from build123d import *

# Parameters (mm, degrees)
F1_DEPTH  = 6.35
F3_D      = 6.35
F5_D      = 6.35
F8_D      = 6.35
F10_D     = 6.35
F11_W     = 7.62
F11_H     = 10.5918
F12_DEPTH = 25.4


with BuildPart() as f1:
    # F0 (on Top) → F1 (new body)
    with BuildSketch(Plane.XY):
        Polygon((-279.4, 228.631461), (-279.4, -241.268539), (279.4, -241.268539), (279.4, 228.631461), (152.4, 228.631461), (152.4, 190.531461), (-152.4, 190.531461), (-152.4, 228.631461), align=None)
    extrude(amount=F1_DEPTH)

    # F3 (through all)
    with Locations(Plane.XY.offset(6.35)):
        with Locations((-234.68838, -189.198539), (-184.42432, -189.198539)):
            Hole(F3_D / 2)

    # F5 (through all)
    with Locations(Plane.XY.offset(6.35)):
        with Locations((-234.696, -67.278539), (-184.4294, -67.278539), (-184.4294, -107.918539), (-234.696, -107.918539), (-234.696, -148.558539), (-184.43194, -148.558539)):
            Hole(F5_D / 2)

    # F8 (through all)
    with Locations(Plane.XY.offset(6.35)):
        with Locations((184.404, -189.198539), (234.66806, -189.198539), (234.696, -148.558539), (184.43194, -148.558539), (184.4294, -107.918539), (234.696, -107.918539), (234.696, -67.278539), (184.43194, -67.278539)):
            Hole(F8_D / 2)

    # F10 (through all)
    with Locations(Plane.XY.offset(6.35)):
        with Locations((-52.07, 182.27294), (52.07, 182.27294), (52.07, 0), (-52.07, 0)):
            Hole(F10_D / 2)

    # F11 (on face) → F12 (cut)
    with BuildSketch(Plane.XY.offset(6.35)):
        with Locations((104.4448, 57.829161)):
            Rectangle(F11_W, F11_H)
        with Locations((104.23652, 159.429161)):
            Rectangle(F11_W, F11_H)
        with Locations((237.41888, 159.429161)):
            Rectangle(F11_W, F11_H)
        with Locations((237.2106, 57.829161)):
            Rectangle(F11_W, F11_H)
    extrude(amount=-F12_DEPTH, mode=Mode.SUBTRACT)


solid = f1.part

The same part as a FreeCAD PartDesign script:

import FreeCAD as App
import Part
import Sketcher
Q = App.Units.Quantity

doc = App.newDocument("Part")
params = doc.addObject("Spreadsheet::Sheet", "Params")
for row, (alias, value) in enumerate([
    ("sketch1_width", "22 in"),
    ("sketch1_width2", "5 in"),
    ("sketch1_height", "18.5 in"),
    ("sketch1_height2", "1.5 in"),
    ("pad1_length", "0.25 in"),
    ("sketch2_diameter", "0.25 in"),
    ("hole_diameter", "0.25 in"),
    ("sketch3_diameter", "0.25 in"),
    ("hole2_diameter", "0.25 in"),
    ("sketch4_diameter", "0.25 in"),
    ("hole3_diameter", "0.25 in"),
    ("sketch5_diameter", "0.25 in"),
    ("hole4_diameter", "0.25 in"),
    ("sketch6_width", "0.3 in"),
    ("sketch6_height", "0.417 in"),
    ("pocket1_length", "1 in"),
], start=1):
    params.set(f"A{row}", alias)
    params.set(f"B{row}", "=" + value)
    params.setAlias(f"B{row}", alias)

body = doc.addObject("PartDesign::Body", "Body")

sketch1 = doc.addObject("Sketcher::SketchObject", "Sketch")
body.addObject(sketch1)
sketch1.AttachmentSupport = (doc.XY_Plane, [""])
sketch1.MapMode = "FlatFace"
sketch1.addGeometry([
    Part.LineSegment(App.Vector(-279, 229, 0), App.Vector(-279, -241, 0)),
    Part.LineSegment(App.Vector(-279, -241, 0), App.Vector(279, -241, 0)),
    Part.LineSegment(App.Vector(279, -241, 0), App.Vector(279, 229, 0)),
    Part.LineSegment(App.Vector(279, 229, 0), App.Vector(152, 229, 0)),
    Part.LineSegment(App.Vector(152, 229, 0), App.Vector(152, 191, 0)),
    Part.LineSegment(App.Vector(152, 191, 0), App.Vector(-152, 191, 0)),
    Part.LineSegment(App.Vector(-152, 191, 0), App.Vector(-152, 229, 0)),
    Part.LineSegment(App.Vector(-152, 229, 0), App.Vector(-279, 229, 0)),
], False)
sketch1.addConstraint([
    Sketcher.Constraint("Coincident", 0, 2, 1, 1),
    Sketcher.Constraint("Coincident", 1, 2, 2, 1),
    Sketcher.Constraint("Coincident", 2, 2, 3, 1),
    Sketcher.Constraint("Coincident", 3, 2, 4, 1),
    Sketcher.Constraint("Coincident", 4, 2, 5, 1),
    Sketcher.Constraint("Coincident", 5, 2, 6, 1),
    Sketcher.Constraint("Coincident", 6, 2, 7, 1),
    Sketcher.Constraint("Coincident", 7, 2, 0, 1),
    Sketcher.Constraint("Vertical", 0),
    Sketcher.Constraint("Horizontal", 1),
    Sketcher.Constraint("Vertical", 2),
    Sketcher.Constraint("Horizontal", 3),
    Sketcher.Constraint("Vertical", 4),
    Sketcher.Constraint("Horizontal", 5),
    Sketcher.Constraint("Vertical", 6),
    Sketcher.Constraint("Horizontal", 7),
    Sketcher.Constraint("Symmetric", 3, 2, 6, 2, -2),
    Sketcher.Constraint("Equal", 3, 7),
    Sketcher.Constraint("DistanceX", 1, 1, 1, 2, Q("22 in")),
    Sketcher.Constraint("DistanceX", 3, 2, 3, 1, Q("5 in")),
    Sketcher.Constraint("DistanceY", 0, 2, 0, 1, Q("18.5 in")),
    Sketcher.Constraint("DistanceY", 4, 2, 4, 1, Q("1.5 in")),
    Sketcher.Constraint("DistanceY", 0, 2, -1, 1, Q("241.268539 mm")),
])
sketch1.setExpression("Constraints[18]", "Params.sketch1_width")
sketch1.setExpression("Constraints[19]", "Params.sketch1_width2")
sketch1.setExpression("Constraints[20]", "Params.sketch1_height")
sketch1.setExpression("Constraints[21]", "Params.sketch1_height2")
pad1 = doc.addObject("PartDesign::Pad", "Pad")
body.addObject(pad1)
pad1.Profile = sketch1
pad1.setExpression("Length", "Params.pad1_length")

sketch2 = doc.addObject("Sketcher::SketchObject", "Sketch001")
body.addObject(sketch2)
sketch2.AttachmentSupport = (doc.XY_Plane, [""])
sketch2.MapMode = "FlatFace"
sketch2.AttachmentOffset = App.Placement(App.Vector(0, 0, 0.25 * 25.4), App.Rotation())
sketch2.addGeometry([
    Part.Circle(App.Vector(-234.7, -189.2, 0), App.Vector(0, 0, 1), 3.2),
    Part.Circle(App.Vector(-184.4, -189.2, 0), App.Vector(0, 0, 1), 3.2),
], False)
sketch2.addConstraint([
    Sketcher.Constraint("Equal", 0, 1),
    Sketcher.Constraint("Horizontal", 0, 3, 1, 3),
    Sketcher.Constraint("Diameter", 0, Q("0.25 in")),
    Sketcher.Constraint("DistanceX", 0, 3, -1, 1, Q("9.2397 in")),
    Sketcher.Constraint("DistanceX", 1, 3, -1, 1, Q("7.2608 in")),
    Sketcher.Constraint("DistanceY", 0, 3, -1, 1, Q("189.198539 mm")),
])
sketch2.setExpression("Constraints[2]", "Params.sketch2_diameter")
doc.recompute()
hole = doc.addObject("PartDesign::Hole", "Hole")
body.addObject(hole)
hole.Profile = sketch2
hole.ThreadType = "None"
hole.setExpression("Diameter", "Params.hole_diameter")
hole.DepthType = "ThroughAll"

sketch3 = doc.addObject("Sketcher::SketchObject", "Sketch002")
body.addObject(sketch3)
sketch3.AttachmentSupport = (doc.XY_Plane, [""])
sketch3.MapMode = "FlatFace"
sketch3.AttachmentOffset = App.Placement(App.Vector(0, 0, 0.25 * 25.4), App.Rotation())
sketch3.addGeometry([
    Part.Circle(App.Vector(-234.7, -67.3, 0), App.Vector(0, 0, 1), 3.2),
    Part.Circle(App.Vector(-184.4, -67.3, 0), App.Vector(0, 0, 1), 3.2),
    Part.Circle(App.Vector(-184.4, -107.9, 0), App.Vector(0, 0, 1), 3.2),
    Part.Circle(App.Vector(-234.7, -107.9, 0), App.Vector(0, 0, 1), 3.2),
    Part.Circle(App.Vector(-234.7, -148.6, 0), App.Vector(0, 0, 1), 3.2),
    Part.Circle(App.Vector(-184.4, -148.6, 0), App.Vector(0, 0, 1), 3.2),
], False)
sketch3.addConstraint([
    Sketcher.Constraint("Equal", 0, 1),
    Sketcher.Constraint("Equal", 1, 2),
    Sketcher.Constraint("Equal", 2, 3),
    Sketcher.Constraint("Equal", 3, 4),
    Sketcher.Constraint("Equal", 4, 5),
    Sketcher.Constraint("Horizontal", 0, 3, 1, 3),
    Sketcher.Constraint("Horizontal", 2, 3, 3, 3),
    Sketcher.Constraint("Horizontal", 4, 3, 5, 3),
    Sketcher.Constraint("Vertical", 1, 3, 2, 3),
    Sketcher.Constraint("Vertical", 0, 3, 3, 3),
    Sketcher.Constraint("Vertical", 3, 3, 4, 3),
    Sketcher.Constraint("Diameter", 0, Q("0.25 in")),
    Sketcher.Constraint("DistanceY", 2, 3, 1, 3, Q("1.6 in")),
    Sketcher.Constraint("DistanceY", 4, 3, 3, 3, Q("1.6 in")),
    Sketcher.Constraint("DistanceX", 0, 3, -1, 1, Q("9.24 in")),
    Sketcher.Constraint("DistanceX", 1, 3, -1, 1, Q("7.261 in")),
    Sketcher.Constraint("DistanceX", 5, 3, -1, 1, Q("7.2611 in")),
    Sketcher.Constraint("DistanceY", 0, 3, -1, 1, Q("67.278539 mm")),
])
sketch3.setExpression("Constraints[11]", "Params.sketch3_diameter")
doc.recompute()
hole2 = doc.addObject("PartDesign::Hole", "Hole001")
body.addObject(hole2)
hole2.Profile = sketch3
hole2.ThreadType = "None"
hole2.setExpression("Diameter", "Params.hole2_diameter")
hole2.DepthType = "ThroughAll"

sketch4 = doc.addObject("Sketcher::SketchObject", "Sketch003")
body.addObject(sketch4)
sketch4.AttachmentSupport = (doc.XY_Plane, [""])
sketch4.MapMode = "FlatFace"
sketch4.AttachmentOffset = App.Placement(App.Vector(0, 0, 0.25 * 25.4), App.Rotation())
sketch4.addGeometry([
    Part.Circle(App.Vector(184.4, -189.2, 0), App.Vector(0, 0, 1), 3.2),
    Part.Circle(App.Vector(234.7, -189.2, 0), App.Vector(0, 0, 1), 3.2),
    Part.Circle(App.Vector(234.7, -148.6, 0), App.Vector(0, 0, 1), 3.2),
    Part.Circle(App.Vector(184.4, -148.6, 0), App.Vector(0, 0, 1), 3.2),
    Part.Circle(App.Vector(184.4, -107.9, 0), App.Vector(0, 0, 1), 3.2),
    Part.Circle(App.Vector(234.7, -107.9, 0), App.Vector(0, 0, 1), 3.2),
    Part.Circle(App.Vector(234.7, -67.3, 0), App.Vector(0, 0, 1), 3.2),
    Part.Circle(App.Vector(184.4, -67.3, 0), App.Vector(0, 0, 1), 3.2),
], False)
sketch4.addConstraint([
    Sketcher.Constraint("Equal", 0, 1),
    Sketcher.Constraint("Equal", 1, 2),
    Sketcher.Constraint("Equal", 2, 3),
    Sketcher.Constraint("Equal", 3, 4),
    Sketcher.Constraint("Equal", 4, 5),
    Sketcher.Constraint("Equal", 5, 6),
    Sketcher.Constraint("Equal", 6, 7),
    Sketcher.Constraint("Horizontal", 0, 3, 1, 3),
    Sketcher.Constraint("Horizontal", 2, 3, 3, 3),
    Sketcher.Constraint("Horizontal", 4, 3, 5, 3),
    Sketcher.Constraint("Horizontal", 6, 3, 7, 3),
    Sketcher.Constraint("Vertical", 2, 3, 5, 3),
    Sketcher.Constraint("Vertical", 5, 3, 6, 3),
    Sketcher.Constraint("Vertical", 3, 3, 7, 3),
    Sketcher.Constraint("Diameter", 0, Q("0.25 in")),
    Sketcher.Constraint("DistanceY", 1, 3, 2, 3, Q("1.6 in")),
    Sketcher.Constraint("DistanceY", 3, 3, 4, 3, Q("1.6 in")),
    Sketcher.Constraint("DistanceY", 5, 3, 6, 3, Q("1.6 in")),
    Sketcher.Constraint("DistanceX", -1, 1, 0, 3, Q("7.26 in")),
    Sketcher.Constraint("DistanceX", -1, 1, 2, 3, Q("9.24 in")),
    Sketcher.Constraint("DistanceX", -1, 1, 4, 3, Q("7.261 in")),
    Sketcher.Constraint("DistanceX", -1, 1, 1, 3, Q("9.2389 in")),
    Sketcher.Constraint("DistanceX", -1, 1, 3, 3, Q("7.2611 in")),
    Sketcher.Constraint("DistanceY", 0, 3, -1, 1, Q("189.198539 mm")),
])
sketch4.setExpression("Constraints[14]", "Params.sketch4_diameter")
doc.recompute()
hole3 = doc.addObject("PartDesign::Hole", "Hole002")
body.addObject(hole3)
hole3.Profile = sketch4
hole3.ThreadType = "None"
hole3.setExpression("Diameter", "Params.hole3_diameter")
hole3.DepthType = "ThroughAll"

sketch5 = doc.addObject("Sketcher::SketchObject", "Sketch004")
body.addObject(sketch5)
sketch5.AttachmentSupport = (doc.XY_Plane, [""])
sketch5.MapMode = "FlatFace"
sketch5.AttachmentOffset = App.Placement(App.Vector(0, 0, 0.25 * 25.4), App.Rotation())
sketch5.addGeometry([
    Part.Circle(App.Vector(-52.1, 182.3, 0), App.Vector(0, 0, 1), 3.2),
    Part.Circle(App.Vector(52.1, 182.3, 0), App.Vector(0, 0, 1), 3.2),
    Part.Circle(App.Vector(52.1, 0, 0), App.Vector(0, 0, 1), 3.2),
    Part.Circle(App.Vector(-52.1, 0, 0), App.Vector(0, 0, 1), 3.2),
], False)
sketch5.addConstraint([
    Sketcher.Constraint("Equal", 0, 1),
    Sketcher.Constraint("Equal", 1, 2),
    Sketcher.Constraint("Equal", 2, 3),
    Sketcher.Constraint("Symmetric", 2, 3, 3, 3, -1, 1),
    Sketcher.Constraint("Symmetric", 0, 3, 1, 3, -2),
    Sketcher.Constraint("PointOnObject", 2, 3, -1),
    Sketcher.Constraint("Vertical", 1, 3, 2, 3),
    Sketcher.Constraint("Diameter", 0, Q("0.25 in")),
    Sketcher.Constraint("DistanceX", 0, 3, 1, 3, Q("4.1 in")),
    Sketcher.Constraint("DistanceY", -1, 1, 0, 3, Q("7.1761 in")),
])
sketch5.setExpression("Constraints[7]", "Params.sketch5_diameter")
doc.recompute()
hole4 = doc.addObject("PartDesign::Hole", "Hole003")
body.addObject(hole4)
hole4.Profile = sketch5
hole4.ThreadType = "None"
hole4.setExpression("Diameter", "Params.hole4_diameter")
hole4.DepthType = "ThroughAll"

sketch6 = doc.addObject("Sketcher::SketchObject", "Sketch005")
body.addObject(sketch6)
sketch6.AttachmentSupport = (doc.XY_Plane, [""])
sketch6.MapMode = "FlatFace"
sketch6.AttachmentOffset = App.Placement(App.Vector(0, 0, 0.25 * 25.4), App.Rotation())
sketch6.addGeometry([
    Part.LineSegment(App.Vector(101, 63, 0), App.Vector(101, 53, 0)),
    Part.LineSegment(App.Vector(101, 53, 0), App.Vector(108, 53, 0)),
    Part.LineSegment(App.Vector(108, 53, 0), App.Vector(108, 63, 0)),
    Part.LineSegment(App.Vector(108, 63, 0), App.Vector(101, 63, 0)),
    Part.LineSegment(App.Vector(100, 165, 0), App.Vector(100, 154, 0)),
    Part.LineSegment(App.Vector(100, 154, 0), App.Vector(108, 154, 0)),
    Part.LineSegment(App.Vector(108, 154, 0), App.Vector(108, 165, 0)),
    Part.LineSegment(App.Vector(108, 165, 0), App.Vector(100, 165, 0)),
    Part.LineSegment(App.Vector(234, 165, 0), App.Vector(234, 154, 0)),
    Part.LineSegment(App.Vector(234, 154, 0), App.Vector(241, 154, 0)),
    Part.LineSegment(App.Vector(241, 154, 0), App.Vector(241, 165, 0)),
    Part.LineSegment(App.Vector(241, 165, 0), App.Vector(234, 165, 0)),
    Part.LineSegment(App.Vector(233, 63, 0), App.Vector(233, 53, 0)),
    Part.LineSegment(App.Vector(233, 53, 0), App.Vector(241, 53, 0)),
    Part.LineSegment(App.Vector(241, 53, 0), App.Vector(241, 63, 0)),
    Part.LineSegment(App.Vector(241, 63, 0), App.Vector(233, 63, 0)),
], False)
sketch6.addConstraint([
    Sketcher.Constraint("Coincident", 0, 2, 1, 1),
    Sketcher.Constraint("Coincident", 1, 2, 2, 1),
    Sketcher.Constraint("Coincident", 2, 2, 3, 1),
    Sketcher.Constraint("Coincident", 3, 2, 0, 1),
    Sketcher.Constraint("Coincident", 4, 2, 5, 1),
    Sketcher.Constraint("Coincident", 5, 2, 6, 1),
    Sketcher.Constraint("Coincident", 6, 2, 7, 1),
    Sketcher.Constraint("Coincident", 7, 2, 4, 1),
    Sketcher.Constraint("Coincident", 8, 2, 9, 1),
    Sketcher.Constraint("Coincident", 9, 2, 10, 1),
    Sketcher.Constraint("Coincident", 10, 2, 11, 1),
    Sketcher.Constraint("Coincident", 11, 2, 8, 1),
    Sketcher.Constraint("Coincident", 12, 2, 13, 1),
    Sketcher.Constraint("Coincident", 13, 2, 14, 1),
    Sketcher.Constraint("Coincident", 14, 2, 15, 1),
    Sketcher.Constraint("Coincident", 15, 2, 12, 1),
    Sketcher.Constraint("Vertical", 0),
    Sketcher.Constraint("Horizontal", 1),
    Sketcher.Constraint("Vertical", 2),
    Sketcher.Constraint("Horizontal", 3),
    Sketcher.Constraint("Vertical", 4),
    Sketcher.Constraint("Horizontal", 5),
    Sketcher.Constraint("Vertical", 6),
    Sketcher.Constraint("Horizontal", 7),
    Sketcher.Constraint("Vertical", 8),
    Sketcher.Constraint("Horizontal", 9),
    Sketcher.Constraint("Vertical", 10),
    Sketcher.Constraint("Horizontal", 11),
    Sketcher.Constraint("Vertical", 12),
    Sketcher.Constraint("Horizontal", 13),
    Sketcher.Constraint("Vertical", 14),
    Sketcher.Constraint("Horizontal", 15),
    Sketcher.Constraint("Horizontal", 5, 2, 8, 2),
    Sketcher.Constraint("Horizontal", 7, 2, 10, 2),
    Sketcher.Constraint("Horizontal", 1, 2, 12, 2),
    Sketcher.Constraint("Horizontal", 3, 2, 14, 2),
    Sketcher.Constraint("Equal", 3, 5),
    Sketcher.Constraint("Equal", 7, 9),
    Sketcher.Constraint("Equal", 11, 13),
    Sketcher.Constraint("Equal", 2, 4),
    Sketcher.Constraint("DistanceX", 1, 1, 1, 2, Q("0.3 in")),
    Sketcher.Constraint("DistanceY", 0, 2, 4, 2, Q("4 in")),
    Sketcher.Constraint("DistanceY", 0, 2, 0, 1, Q("0.417 in")),
    Sketcher.Constraint("DistanceX", -1, 1, 0, 2, Q("3.962 in")),
    Sketcher.Constraint("DistanceX", -1, 1, 12, 2, Q("9.189 in")),
    Sketcher.Constraint("DistanceX", -1, 1, 4, 2, Q("3.9538 in")),
    Sketcher.Constraint("DistanceX", -1, 1, 8, 2, Q("9.1972 in")),
    Sketcher.Constraint("DistanceY", -1, 1, 0, 2, Q("52.533261 mm")),
])
sketch6.setExpression("Constraints[40]", "Params.sketch6_width")
sketch6.setExpression("Constraints[42]", "Params.sketch6_height")
pocket1 = doc.addObject("PartDesign::Pocket", "Pocket")
body.addObject(pocket1)
pocket1.Profile = sketch6
pocket1.setExpression("Length", "Params.pocket1_length")

doc.recompute()
